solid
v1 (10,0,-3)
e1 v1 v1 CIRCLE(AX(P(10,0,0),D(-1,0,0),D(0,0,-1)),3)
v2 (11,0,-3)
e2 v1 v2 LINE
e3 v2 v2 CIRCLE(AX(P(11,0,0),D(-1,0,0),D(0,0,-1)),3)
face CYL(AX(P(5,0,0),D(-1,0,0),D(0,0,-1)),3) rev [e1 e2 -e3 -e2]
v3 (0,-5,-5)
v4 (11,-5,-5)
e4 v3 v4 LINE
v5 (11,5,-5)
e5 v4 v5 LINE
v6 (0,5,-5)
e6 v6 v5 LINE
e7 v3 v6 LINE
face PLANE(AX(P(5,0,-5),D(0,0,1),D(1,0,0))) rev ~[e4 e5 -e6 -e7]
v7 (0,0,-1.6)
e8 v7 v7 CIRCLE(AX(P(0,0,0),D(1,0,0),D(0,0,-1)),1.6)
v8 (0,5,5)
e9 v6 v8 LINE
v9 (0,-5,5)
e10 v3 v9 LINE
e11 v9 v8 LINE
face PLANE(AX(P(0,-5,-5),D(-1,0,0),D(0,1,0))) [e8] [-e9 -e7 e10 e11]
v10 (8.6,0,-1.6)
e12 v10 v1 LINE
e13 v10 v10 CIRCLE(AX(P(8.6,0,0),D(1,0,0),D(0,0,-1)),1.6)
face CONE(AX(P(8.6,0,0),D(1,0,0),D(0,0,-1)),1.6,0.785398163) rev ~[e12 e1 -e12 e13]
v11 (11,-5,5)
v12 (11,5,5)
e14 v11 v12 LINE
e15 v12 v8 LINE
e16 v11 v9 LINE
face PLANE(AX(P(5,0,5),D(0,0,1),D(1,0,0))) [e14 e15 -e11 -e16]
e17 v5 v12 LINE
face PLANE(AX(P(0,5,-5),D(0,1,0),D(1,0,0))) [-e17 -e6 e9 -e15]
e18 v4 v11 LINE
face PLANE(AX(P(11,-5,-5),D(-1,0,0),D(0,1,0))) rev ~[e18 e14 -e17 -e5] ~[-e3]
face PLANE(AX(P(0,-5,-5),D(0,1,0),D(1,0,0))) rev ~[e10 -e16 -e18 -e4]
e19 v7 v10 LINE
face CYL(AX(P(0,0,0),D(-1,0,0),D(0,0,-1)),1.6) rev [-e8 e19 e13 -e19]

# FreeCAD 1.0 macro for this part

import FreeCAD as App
import Part
import Sketcher


def edges_at(feature, points):
    """Names of the edges that pass closest to the given points."""
    edges = feature.Shape.Edges
    near = lambda p: min(range(len(edges)), key=lambda i: edges[i].distToShape(Part.Vertex(*p))[0])
    return sorted({f"Edge{near(p) + 1}" for p in points})

doc = App.newDocument("Part")
body = doc.addObject("PartDesign::Body", "Body")

sketch1 = body.newObject("Sketcher::SketchObject", "Sketch")
sketch1.AttachmentSupport = (doc.getObject("YZ_Plane"), [""])
sketch1.MapMode = "FlatFace"
sketch1.addGeometry(Part.Circle(App.Vector(0, 0, 0), App.Vector(0, 0, 1), 1.6), False)
sketch1.addConstraint(Sketcher.Constraint("Coincident", 0, 3, -1, 1))
sketch1.addConstraint(Sketcher.Constraint("Diameter", 0, 3.2))
pad1 = body.newObject("PartDesign::Pad", "Pad")
pad1.Profile = sketch1
pad1.Length = 10
body2 = doc.addObject("PartDesign::Body", "Body001")

sketch2 = body2.newObject("Sketcher::SketchObject", "Sketch001")
sketch2.AttachmentSupport = (doc.getObject("XY_Plane001"), [""])
sketch2.MapMode = "FlatFace"
sketch2.AttachmentOffset = App.Placement(App.Vector(0, 0, -5), App.Rotation())
sketch2.addGeometry(Part.LineSegment(App.Vector(0, 5, 0), App.Vector(0, -5, 0)), False)
sketch2.addGeometry(Part.LineSegment(App.Vector(0, -5, 0), App.Vector(10, -5, 0)), False)
sketch2.addGeometry(Part.LineSegment(App.Vector(10, -5, 0), App.Vector(10, 5, 0)), False)
sketch2.addGeometry(Part.LineSegment(App.Vector(10, 5, 0), App.Vector(0, 5, 0)), False)
sketch2.addConstraint(Sketcher.Constraint("Coincident", 0, 2, 1, 1))
sketch2.addConstraint(Sketcher.Constraint("Coincident", 1, 2, 2, 1))
sketch2.addConstraint(Sketcher.Constraint("Coincident", 2, 2, 3, 1))
sketch2.addConstraint(Sketcher.Constraint("Coincident", 3, 2, 0, 1))
sketch2.addConstraint(Sketcher.Constraint("Vertical", 0))
sketch2.addConstraint(Sketcher.Constraint("Horizontal", 1))
sketch2.addConstraint(Sketcher.Constraint("Vertical", 2))
sketch2.addConstraint(Sketcher.Constraint("Horizontal", 3))
sketch2.addConstraint(Sketcher.Constraint("Symmetric", 0, 2, 3, 2, -1, 1))
sketch2.addConstraint(Sketcher.Constraint("Equal", 3, 0))
sketch2.addConstraint(Sketcher.Constraint("DistanceX", 1, 1, 1, 2, 10.0))
pad2 = body2.newObject("PartDesign::Pad", "Pad001")
pad2.Profile = sketch2
pad2.Length = 10
doc.recompute()

boolean = body2.newObject("PartDesign::Boolean", "Boolean")
boolean.Type = "Cut"
boolean.addObjects([body])
doc.recompute()

chamfer = body2.newObject("PartDesign::Chamfer", "Chamfer")
chamfer.Base = (boolean, edges_at(boolean, [(10, 0, 1.6)]))
chamfer.Size = 1.4
body3 = doc.addObject("PartDesign::Body", "Body002")

sketch3 = body3.newObject("Sketcher::SketchObject", "Sketch002")
sketch3.AttachmentSupport = (doc.getObject("YZ_Plane002"), [""])
sketch3.MapMode = "FlatFace"
sketch3.AttachmentOffset = App.Placement(App.Vector(0, 0, 5), App.Rotation())
sketch3.addGeometry(Part.Circle(App.Vector(0, 0, 0), App.Vector(0, 0, 1), 3), False)
sketch3.addConstraint(Sketcher.Constraint("Coincident", 0, 3, -1, 1))
sketch3.addConstraint(Sketcher.Constraint("Diameter", 0, 6.0))
pad3 = body3.newObject("PartDesign::Pad", "Pad002")
pad3.Profile = sketch3
pad3.Length = 10
body4 = doc.addObject("PartDesign::Body", "Body003")

sketch4 = body4.newObject("Sketcher::SketchObject", "Sketch003")
sketch4.AttachmentSupport = (doc.getObject("XY_Plane003"), [""])
sketch4.MapMode = "FlatFace"
sketch4.AttachmentOffset = App.Placement(App.Vector(0, 0, -5), App.Rotation())
sketch4.addGeometry(Part.LineSegment(App.Vector(10, 5, 0), App.Vector(10, -5, 0)), False)
sketch4.addGeometry(Part.LineSegment(App.Vector(10, -5, 0), App.Vector(11, -5, 0)), False)
sketch4.addGeometry(Part.LineSegment(App.Vector(11, -5, 0), App.Vector(11, 5, 0)), False)
sketch4.addGeometry(Part.LineSegment(App.Vector(11, 5, 0), App.Vector(10, 5, 0)), False)
sketch4.addConstraint(Sketcher.Constraint("Coincident", 0, 2, 1, 1))
sketch4.addConstraint(Sketcher.Constraint("Coincident", 1, 2, 2, 1))
sketch4.addConstraint(Sketcher.Constraint("Coincident", 2, 2, 3, 1))
sketch4.addConstraint(Sketcher.Constraint("Coincident", 3, 2, 0, 1))
sketch4.addConstraint(Sketcher.Constraint("Vertical", 0))
sketch4.addConstraint(Sketcher.Constraint("Horizontal", 1))
sketch4.addConstraint(Sketcher.Constraint("Vertical", 2))
sketch4.addConstraint(Sketcher.Constraint("Horizontal", 3))
sketch4.addConstraint(Sketcher.Constraint("DistanceX", 1, 1, 1, 2, 1.0))
sketch4.addConstraint(Sketcher.Constraint("DistanceY", 0, 2, 0, 1, 10.0))
sketch4.addConstraint(Sketcher.Constraint("DistanceX", -1, 1, 0, 2, 10.0))
sketch4.addConstraint(Sketcher.Constraint("DistanceY", 0, 2, -1, 1, 5.0))
pad4 = body4.newObject("PartDesign::Pad", "Pad003")
pad4.Profile = sketch4
pad4.Length = 10
doc.recompute()

boolean2 = body4.newObject("PartDesign::Boolean", "Boolean001")
boolean2.Type = "Cut"
boolean2.addObjects([body3])
doc.recompute()

boolean3 = body4.newObject("PartDesign::Boolean", "Boolean002")
boolean3.Type = "Fuse"
boolean3.addObjects([body2])

doc.recompute()
